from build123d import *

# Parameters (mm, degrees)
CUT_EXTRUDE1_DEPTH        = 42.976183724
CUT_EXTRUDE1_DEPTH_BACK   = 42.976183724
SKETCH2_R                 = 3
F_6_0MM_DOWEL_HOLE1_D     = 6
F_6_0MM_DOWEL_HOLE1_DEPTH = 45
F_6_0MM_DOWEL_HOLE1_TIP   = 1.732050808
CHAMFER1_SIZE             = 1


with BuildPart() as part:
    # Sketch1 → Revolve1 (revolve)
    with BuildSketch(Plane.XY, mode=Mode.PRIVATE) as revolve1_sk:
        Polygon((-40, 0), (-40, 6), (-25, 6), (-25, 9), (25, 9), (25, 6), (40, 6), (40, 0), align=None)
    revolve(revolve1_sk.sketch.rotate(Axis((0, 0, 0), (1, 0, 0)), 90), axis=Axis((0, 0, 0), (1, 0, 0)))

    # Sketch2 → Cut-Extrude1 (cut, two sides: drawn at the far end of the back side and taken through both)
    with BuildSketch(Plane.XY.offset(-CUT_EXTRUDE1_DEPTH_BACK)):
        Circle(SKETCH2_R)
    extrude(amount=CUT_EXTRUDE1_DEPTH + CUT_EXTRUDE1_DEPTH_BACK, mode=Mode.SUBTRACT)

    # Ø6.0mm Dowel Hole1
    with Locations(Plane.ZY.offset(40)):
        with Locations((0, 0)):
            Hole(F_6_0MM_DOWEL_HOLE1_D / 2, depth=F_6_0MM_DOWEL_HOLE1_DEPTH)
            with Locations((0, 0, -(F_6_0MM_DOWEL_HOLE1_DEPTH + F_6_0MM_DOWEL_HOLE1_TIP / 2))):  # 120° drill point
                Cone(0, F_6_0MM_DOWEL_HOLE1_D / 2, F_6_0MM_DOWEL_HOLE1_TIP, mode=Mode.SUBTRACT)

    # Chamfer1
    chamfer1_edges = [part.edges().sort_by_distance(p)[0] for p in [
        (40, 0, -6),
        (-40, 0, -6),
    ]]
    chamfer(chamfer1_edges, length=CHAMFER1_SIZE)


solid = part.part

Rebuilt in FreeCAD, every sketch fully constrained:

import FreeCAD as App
import Part
import Sketcher

V = App.Vector


def edges_at(feature, points):
    """Names of the edges that pass closest to the given points."""
    edges = feature.Shape.Edges
    near = lambda p: min(range(len(edges)), key=lambda i: edges[i].distToShape(Part.Vertex(*p))[0])
    return sorted({f"Edge{near(p) + 1}" for p in points})


def add_polygon(sketch, points):
    """Adds a closed chain of lines whose ends are joined by coincident constraints."""
    first, n = sketch.GeometryCount, len(points)
    for a, b in zip(points, points[1:] + points[:1]):
        sketch.addGeometry(Part.LineSegment(App.Vector(*a, 0), App.Vector(*b, 0)), False)
    for i in range(n):
        sketch.addConstraint(Sketcher.Constraint("Coincident", first + i, 2, first + (i + 1) % n, 1))

doc = App.newDocument("Part")
body = doc.addObject("PartDesign::Body", "Body")

sketch1 = body.newObject("Sketcher::SketchObject", "Sketch")
sketch1.AttachmentSupport = (doc.getObject("XY_Plane"), [""])
sketch1.MapMode = "FlatFace"
add_polygon(sketch1, [(-40, 6), (-40, 0), (40, 0), (40, 6), (25, 6), (25, 9), (-25, 9), (-25, 6)])
sketch1.addConstraint(Sketcher.Constraint("Vertical", 0))
sketch1.addConstraint(Sketcher.Constraint("Horizontal", 1))
sketch1.addConstraint(Sketcher.Constraint("Vertical", 2))
sketch1.addConstraint(Sketcher.Constraint("Horizontal", 3))
sketch1.addConstraint(Sketcher.Constraint("Vertical", 4))
sketch1.addConstraint(Sketcher.Constraint("Horizontal", 5))
sketch1.addConstraint(Sketcher.Constraint("Vertical", 6))
sketch1.addConstraint(Sketcher.Constraint("Horizontal", 7))
sketch1.addConstraint(Sketcher.Constraint("Symmetric", 0, 2, 1, 2, -1, 1))
sketch1.addConstraint(Sketcher.Constraint("Symmetric", 3, 2, 6, 2, -2))
sketch1.addConstraint(Sketcher.Constraint("DistanceX", 1, 1, 1, 2, 80.0))
sketch1.addConstraint(Sketcher.Constraint("DistanceX", 3, 2, 3, 1, 15.0))
sketch1.addConstraint(Sketcher.Constraint("DistanceY", 0, 2, 0, 1, 6.0))
sketch1.addConstraint(Sketcher.Constraint("DistanceY", 4, 1, 4, 2, 3.0))
revolution = body.newObject("PartDesign::Revolution", "Revolution")
revolution.Profile = sketch1
revolution.ReferenceAxis = (sketch1, ["H_Axis"])
revolution.Angle = 360

sketch2 = body.newObject("Sketcher::SketchObject", "Sketch001")
sketch2.AttachmentSupport = (doc.getObject("XY_Plane"), [""])
sketch2.MapMode = "FlatFace"
sketch2.addGeometry(Part.Circle(V(0, 0, 0), V(0, 0, 1), 3), False)
sketch2.addConstraint(Sketcher.Constraint("Coincident", 0, 3, -1, 1))
sketch2.addConstraint(Sketcher.Constraint("Diameter", 0, 6.0))
pocket1 = body.newObject("PartDesign::Pocket", "Pocket")
pocket1.Profile = sketch2
pocket1.Type = "ThroughAll"
pocket1.Midplane = True

sketch3 = body.newObject("Sketcher::SketchObject", "Sketch002")
sketch3.AttachmentSupport = (doc.getObject("YZ_Plane"), [""])
sketch3.MapMode = "FlatFace"
sketch3.AttachmentOffset = App.Placement(V(0, 0, -40), App.Rotation())
sketch3.addGeometry(Part.Circle(V(0, 0, 0), V(0, 0, 1), 3), False)
sketch3.addConstraint(Sketcher.Constraint("Coincident", 0, 3, -1, 1))
sketch3.addConstraint(Sketcher.Constraint("Diameter", 0, 6.0))
doc.recompute()
hole = body.newObject("PartDesign::Hole", "Hole")
hole.Profile = sketch3
hole.ThreadType = "None"
hole.Diameter = 6
hole.DepthType = "Dimension"
hole.Depth = 45
hole.DrillPoint = "Angled"
hole.DrillPointAngle = 120
hole.Reversed = True
doc.recompute()

chamfer = body.newObject("PartDesign::Chamfer", "Chamfer")
chamfer.Base = (hole, edges_at(hole, [(40, 0, -6), (-40, 0, -6)]))
chamfer.Size = 1

doc.recompute()
